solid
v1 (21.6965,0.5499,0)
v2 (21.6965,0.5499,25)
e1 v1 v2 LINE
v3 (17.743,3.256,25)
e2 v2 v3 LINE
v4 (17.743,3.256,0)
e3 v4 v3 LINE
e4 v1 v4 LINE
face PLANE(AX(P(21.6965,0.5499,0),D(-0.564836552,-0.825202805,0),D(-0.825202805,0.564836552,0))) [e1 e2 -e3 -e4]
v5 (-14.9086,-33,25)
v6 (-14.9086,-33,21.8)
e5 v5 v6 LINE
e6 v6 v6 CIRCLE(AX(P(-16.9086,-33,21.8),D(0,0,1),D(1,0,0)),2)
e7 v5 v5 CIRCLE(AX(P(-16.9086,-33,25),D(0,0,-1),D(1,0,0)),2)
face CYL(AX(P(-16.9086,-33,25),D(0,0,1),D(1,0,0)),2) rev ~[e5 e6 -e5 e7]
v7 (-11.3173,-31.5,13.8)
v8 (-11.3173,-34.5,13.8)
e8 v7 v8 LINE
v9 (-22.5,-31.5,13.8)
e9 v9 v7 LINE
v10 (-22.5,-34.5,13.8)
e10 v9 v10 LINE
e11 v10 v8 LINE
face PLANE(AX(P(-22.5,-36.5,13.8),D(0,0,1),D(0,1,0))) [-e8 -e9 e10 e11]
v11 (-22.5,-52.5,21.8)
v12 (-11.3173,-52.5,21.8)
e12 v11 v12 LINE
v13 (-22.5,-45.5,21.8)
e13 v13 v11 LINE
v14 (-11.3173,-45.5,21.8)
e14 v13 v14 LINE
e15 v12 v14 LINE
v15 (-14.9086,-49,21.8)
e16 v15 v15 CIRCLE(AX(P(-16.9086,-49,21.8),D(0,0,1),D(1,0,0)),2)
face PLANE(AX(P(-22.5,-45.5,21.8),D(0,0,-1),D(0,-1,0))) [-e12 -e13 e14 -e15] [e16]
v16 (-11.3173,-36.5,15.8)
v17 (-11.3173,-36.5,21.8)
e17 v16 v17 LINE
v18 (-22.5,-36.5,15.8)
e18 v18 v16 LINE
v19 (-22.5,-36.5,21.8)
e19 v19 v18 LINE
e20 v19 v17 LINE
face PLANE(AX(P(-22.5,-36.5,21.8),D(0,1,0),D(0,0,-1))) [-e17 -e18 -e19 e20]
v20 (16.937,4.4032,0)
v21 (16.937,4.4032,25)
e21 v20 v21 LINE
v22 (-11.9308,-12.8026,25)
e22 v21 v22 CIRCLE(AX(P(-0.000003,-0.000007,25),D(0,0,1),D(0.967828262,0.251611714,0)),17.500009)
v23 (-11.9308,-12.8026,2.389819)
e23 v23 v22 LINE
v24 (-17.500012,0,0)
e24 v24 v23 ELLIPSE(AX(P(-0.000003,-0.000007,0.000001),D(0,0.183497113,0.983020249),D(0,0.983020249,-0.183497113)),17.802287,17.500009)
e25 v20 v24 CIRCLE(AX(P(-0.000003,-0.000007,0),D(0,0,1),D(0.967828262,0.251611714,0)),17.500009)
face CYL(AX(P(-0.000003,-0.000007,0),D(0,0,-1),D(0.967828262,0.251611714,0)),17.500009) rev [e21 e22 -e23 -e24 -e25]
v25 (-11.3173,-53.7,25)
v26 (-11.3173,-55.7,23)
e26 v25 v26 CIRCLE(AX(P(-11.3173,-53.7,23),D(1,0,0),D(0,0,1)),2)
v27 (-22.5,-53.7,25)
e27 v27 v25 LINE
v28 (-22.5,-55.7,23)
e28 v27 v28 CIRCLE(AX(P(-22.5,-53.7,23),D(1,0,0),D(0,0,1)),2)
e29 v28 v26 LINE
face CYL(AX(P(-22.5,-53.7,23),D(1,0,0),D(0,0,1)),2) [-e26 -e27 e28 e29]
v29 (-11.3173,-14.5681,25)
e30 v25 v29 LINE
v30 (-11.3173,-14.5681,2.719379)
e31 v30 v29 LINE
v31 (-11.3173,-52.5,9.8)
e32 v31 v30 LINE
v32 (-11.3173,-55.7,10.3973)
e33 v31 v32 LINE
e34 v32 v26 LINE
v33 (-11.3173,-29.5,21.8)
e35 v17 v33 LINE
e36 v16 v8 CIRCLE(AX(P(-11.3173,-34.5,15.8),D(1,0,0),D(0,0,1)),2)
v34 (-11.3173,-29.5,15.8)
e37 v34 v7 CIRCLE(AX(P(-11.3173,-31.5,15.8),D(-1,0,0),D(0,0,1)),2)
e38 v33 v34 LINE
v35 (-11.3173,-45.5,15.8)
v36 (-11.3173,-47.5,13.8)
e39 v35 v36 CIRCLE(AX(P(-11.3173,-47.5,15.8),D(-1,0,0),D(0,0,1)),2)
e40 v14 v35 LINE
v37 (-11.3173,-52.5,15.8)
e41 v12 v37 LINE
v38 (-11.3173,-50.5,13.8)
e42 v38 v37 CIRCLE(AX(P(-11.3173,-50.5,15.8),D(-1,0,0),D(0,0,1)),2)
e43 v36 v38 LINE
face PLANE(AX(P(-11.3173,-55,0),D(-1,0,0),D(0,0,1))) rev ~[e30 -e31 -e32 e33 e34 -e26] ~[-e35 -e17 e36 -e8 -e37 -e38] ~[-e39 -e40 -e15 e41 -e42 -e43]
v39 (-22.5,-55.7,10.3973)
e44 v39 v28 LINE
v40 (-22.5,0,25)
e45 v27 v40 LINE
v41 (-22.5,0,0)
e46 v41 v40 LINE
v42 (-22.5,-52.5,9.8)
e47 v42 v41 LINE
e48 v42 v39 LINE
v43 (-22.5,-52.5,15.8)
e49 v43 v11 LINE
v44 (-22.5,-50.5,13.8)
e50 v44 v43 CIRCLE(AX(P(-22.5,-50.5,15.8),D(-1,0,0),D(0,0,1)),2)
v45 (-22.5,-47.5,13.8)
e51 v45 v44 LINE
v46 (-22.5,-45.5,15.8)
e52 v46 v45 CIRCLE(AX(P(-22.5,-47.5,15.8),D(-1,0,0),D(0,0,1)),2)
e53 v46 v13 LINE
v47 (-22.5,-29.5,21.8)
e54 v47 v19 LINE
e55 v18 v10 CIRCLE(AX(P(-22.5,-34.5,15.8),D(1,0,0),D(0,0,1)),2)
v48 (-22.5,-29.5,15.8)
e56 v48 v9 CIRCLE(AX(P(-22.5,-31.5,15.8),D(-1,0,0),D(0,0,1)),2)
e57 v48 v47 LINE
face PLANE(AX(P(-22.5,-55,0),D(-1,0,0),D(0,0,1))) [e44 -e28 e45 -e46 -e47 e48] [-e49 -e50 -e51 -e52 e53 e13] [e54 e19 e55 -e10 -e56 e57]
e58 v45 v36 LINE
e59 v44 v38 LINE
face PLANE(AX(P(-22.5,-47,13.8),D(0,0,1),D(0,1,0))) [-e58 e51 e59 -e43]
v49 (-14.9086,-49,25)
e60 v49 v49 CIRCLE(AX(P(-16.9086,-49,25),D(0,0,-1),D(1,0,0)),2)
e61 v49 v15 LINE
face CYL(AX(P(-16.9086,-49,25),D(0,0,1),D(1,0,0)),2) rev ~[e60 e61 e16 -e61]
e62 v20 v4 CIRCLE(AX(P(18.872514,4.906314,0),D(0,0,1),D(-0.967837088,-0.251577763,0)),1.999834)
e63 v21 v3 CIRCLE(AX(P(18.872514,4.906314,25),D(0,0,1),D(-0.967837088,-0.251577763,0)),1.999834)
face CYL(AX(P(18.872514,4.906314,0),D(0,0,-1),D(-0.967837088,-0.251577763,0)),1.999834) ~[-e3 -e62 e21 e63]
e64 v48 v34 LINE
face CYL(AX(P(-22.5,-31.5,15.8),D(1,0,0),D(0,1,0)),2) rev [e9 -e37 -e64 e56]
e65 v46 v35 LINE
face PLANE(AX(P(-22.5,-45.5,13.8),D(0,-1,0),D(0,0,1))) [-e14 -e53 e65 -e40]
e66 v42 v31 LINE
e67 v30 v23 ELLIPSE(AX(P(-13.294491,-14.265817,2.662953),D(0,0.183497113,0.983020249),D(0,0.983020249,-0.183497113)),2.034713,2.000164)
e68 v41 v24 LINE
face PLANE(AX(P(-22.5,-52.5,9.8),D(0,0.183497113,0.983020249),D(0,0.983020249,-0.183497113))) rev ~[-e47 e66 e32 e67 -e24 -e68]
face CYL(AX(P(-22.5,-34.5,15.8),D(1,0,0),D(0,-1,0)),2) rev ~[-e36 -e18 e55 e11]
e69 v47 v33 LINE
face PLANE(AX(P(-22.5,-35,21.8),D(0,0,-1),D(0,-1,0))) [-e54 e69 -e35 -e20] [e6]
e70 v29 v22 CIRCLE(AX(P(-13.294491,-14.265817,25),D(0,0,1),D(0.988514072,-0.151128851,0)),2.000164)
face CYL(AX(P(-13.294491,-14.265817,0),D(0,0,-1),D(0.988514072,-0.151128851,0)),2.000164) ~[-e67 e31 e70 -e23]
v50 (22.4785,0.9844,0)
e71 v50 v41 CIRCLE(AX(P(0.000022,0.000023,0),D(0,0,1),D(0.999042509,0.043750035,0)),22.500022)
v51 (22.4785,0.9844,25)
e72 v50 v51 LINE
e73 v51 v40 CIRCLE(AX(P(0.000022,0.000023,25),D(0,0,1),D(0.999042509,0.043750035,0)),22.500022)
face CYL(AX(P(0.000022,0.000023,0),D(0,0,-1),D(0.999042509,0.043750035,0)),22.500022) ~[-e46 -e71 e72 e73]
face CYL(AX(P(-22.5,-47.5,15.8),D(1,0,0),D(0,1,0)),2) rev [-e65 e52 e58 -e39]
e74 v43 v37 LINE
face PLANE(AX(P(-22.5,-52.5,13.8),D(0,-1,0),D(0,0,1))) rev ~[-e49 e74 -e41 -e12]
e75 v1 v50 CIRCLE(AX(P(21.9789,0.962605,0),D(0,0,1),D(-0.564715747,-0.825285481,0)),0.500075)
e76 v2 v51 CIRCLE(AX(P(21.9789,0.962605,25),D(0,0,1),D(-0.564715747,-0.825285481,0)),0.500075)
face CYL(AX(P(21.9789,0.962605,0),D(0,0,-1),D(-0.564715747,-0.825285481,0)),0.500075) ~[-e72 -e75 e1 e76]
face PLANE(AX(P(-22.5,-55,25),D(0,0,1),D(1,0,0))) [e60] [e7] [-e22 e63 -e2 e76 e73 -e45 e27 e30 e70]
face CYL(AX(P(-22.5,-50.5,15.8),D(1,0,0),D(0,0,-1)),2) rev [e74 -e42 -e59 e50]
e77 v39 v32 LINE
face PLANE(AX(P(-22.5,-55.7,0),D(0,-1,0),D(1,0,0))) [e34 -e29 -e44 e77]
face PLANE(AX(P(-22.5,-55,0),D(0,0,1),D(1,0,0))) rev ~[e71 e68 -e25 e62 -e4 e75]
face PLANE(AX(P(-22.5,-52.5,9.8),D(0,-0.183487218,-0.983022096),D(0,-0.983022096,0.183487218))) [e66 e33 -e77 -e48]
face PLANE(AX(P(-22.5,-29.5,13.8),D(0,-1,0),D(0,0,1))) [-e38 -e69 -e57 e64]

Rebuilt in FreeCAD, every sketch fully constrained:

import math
import FreeCAD as App
import Part
import Sketcher

V = App.Vector
Q = App.Units.Quantity


def edges_at(feature, points):
    """Names of the edges that pass closest to the given points."""
    edges = feature.Shape.Edges
    near = lambda p: min(range(len(edges)), key=lambda i: edges[i].distToShape(Part.Vertex(*p))[0])
    return sorted({f"Edge{near(p) + 1}" for p in points})

doc = App.newDocument("Part")
body = doc.addObject("PartDesign::Body", "Body")

sketch1 = body.newObject("Sketcher::SketchObject", "Sketch")
sketch1.AttachmentSupport = (doc.getObject("XY_Plane"), [""])
sketch1.MapMode = "FlatFace"
sketch1.addGeometry(Part.ArcOfCircle(Part.Circle(V(0, 0, 0), V(0, 0, 1), 17.5), math.radians(15), math.radians(227)), False)
sketch1.addGeometry(Part.ArcOfCircle(Part.Circle(V(18.9, 4.9, 0), V(0, 0, 1), 2), math.radians(-165), math.radians(-124)), False)
sketch1.addGeometry(Part.LineSegment(V(17.7, 3.3, 0), V(21.7, 0.5, 0)), False)
sketch1.addGeometry(Part.ArcOfCircle(Part.Circle(V(22, 1, 0), V(0, 0, 1), 0.5), math.radians(-124), math.radians(2)), False)
sketch1.addGeometry(Part.ArcOfCircle(Part.Circle(V(0, 0, 0), V(0, 0, 1), 22.5), math.radians(3), math.radians(180)), False)
sketch1.addGeometry(Part.LineSegment(V(-22.5, 0, 0), V(-22.5, -55, 0)), False)
sketch1.addGeometry(Part.LineSegment(V(-22.5, -55, 0), V(-11.3, -55, 0)), False)
sketch1.addGeometry(Part.LineSegment(V(-11.3, -55, 0), V(-11.3, -14.6, 0)), False)
sketch1.addGeometry(Part.ArcOfCircle(Part.Circle(V(-13.3, -14.3, 0), V(0, 0, 1), 2), math.radians(-9), math.radians(47)), False)
sketch1.addConstraint(Sketcher.Constraint("Tangent", 0, 1, 1, 1))
sketch1.addConstraint(Sketcher.Constraint("Tangent", 1, 2, 2, 1))
sketch1.addConstraint(Sketcher.Constraint("Tangent", 2, 2, 3, 1))
sketch1.addConstraint(Sketcher.Constraint("Tangent", 3, 2, 4, 1))
sketch1.addConstraint(Sketcher.Constraint("Tangent", 4, 2, 5, 1))
sketch1.addConstraint(Sketcher.Constraint("Coincident", 5, 2, 6, 1))
sketch1.addConstraint(Sketcher.Constraint("Coincident", 6, 2, 7, 1))
sketch1.addConstraint(Sketcher.Constraint("Coincident", 7, 2, 8, 1))
sketch1.addConstraint(Sketcher.Constraint("Tangent", 8, 2, 0, 2))
sketch1.addConstraint(Sketcher.Constraint("Vertical", 5))
sketch1.addConstraint(Sketcher.Constraint("Horizontal", 6))
sketch1.addConstraint(Sketcher.Constraint("Vertical", 7))
sketch1.addConstraint(Sketcher.Constraint("Coincident", 0, 3, -1, 1))
sketch1.addConstraint(Sketcher.Constraint("Coincident", 4, 3, -1, 1))
sketch1.addConstraint(Sketcher.Constraint("Equal", 1, 8))
sketch1.addConstraint(Sketcher.Constraint("Radius", 1, Q("2 mm")))
sketch1.addConstraint(Sketcher.Constraint("Radius", 0, Q("17.5 mm")))
sketch1.addConstraint(Sketcher.Constraint("Radius", 3, Q("0.5 mm")))
sketch1.addConstraint(Sketcher.Constraint("Radius", 4, Q("22.5 mm")))
sketch1.addConstraint(Sketcher.Constraint("DistanceY", 5, 2, 5, 1, Q("55 mm")))
sketch1.addConstraint(Sketcher.Constraint("Angle", 2, Q("-34.391 deg")))
sketch1.addConstraint(Sketcher.Constraint("DistanceY", 7, 1, 7, 2, Q("40.432 mm")))
sketch1.addConstraint(Sketcher.Constraint("DistanceY", -1, 1, 2, 2, Q("0.55 mm")))
sketch1.addConstraint(Sketcher.Constraint("DistanceX", 6, 1, 6, 2, Q("11.1827 mm")))
pad1 = body.newObject("PartDesign::Pad", "Pad")
pad1.Profile = sketch1
pad1.Length = 25

sketch2 = body.newObject("Sketcher::SketchObject", "Sketch001")
sketch2.AttachmentSupport = (doc.getObject("XY_Plane"), [""])
sketch2.MapMode = "FlatFace"
sketch2.AttachmentOffset = App.Placement(V(0, 0, 25), App.Rotation())
sketch2.addGeometry(Part.Circle(V(-16.9, -49, 0), V(0, 0, 1), 2), False)
sketch2.addGeometry(Part.Circle(V(-16.9, -33, 0), V(0, 0, 1), 2), False)
sketch2.addConstraint(Sketcher.Constraint("Equal", 0, 1))
sketch2.addConstraint(Sketcher.Constraint("Vertical", 0, 3, 1, 3))
sketch2.addConstraint(Sketcher.Constraint("Diameter", 0, Q("4 mm")))
sketch2.addConstraint(Sketcher.Constraint("DistanceY", 0, 3, 1, 3, Q("16 mm")))
sketch2.addConstraint(Sketcher.Constraint("DistanceY", 0, 3, -1, 1, Q("49 mm")))
sketch2.addConstraint(Sketcher.Constraint("DistanceX", 0, 3, -1, 1, Q("16.9086 mm")))
pocket1 = body.newObject("PartDesign::Pocket", "Pocket")
pocket1.Profile = sketch2
pocket1.Length = 10

sketch3 = body.newObject("Sketcher::SketchObject", "Sketch002")
sketch3.AttachmentSupport = (doc.getObject("YZ_Plane"), [""])
sketch3.MapMode = "FlatFace"
sketch3.AttachmentOffset = App.Placement(V(0, 0, -22.5), App.Rotation())
sketch3.addGeometry(Part.LineSegment(V(-36, 22, 0), V(-30, 22, 0)), False)
sketch3.addGeometry(Part.LineSegment(V(-30, 22, 0), V(-30, 14, 0)), False)
sketch3.addGeometry(Part.LineSegment(V(-30, 14, 0), V(-36, 14, 0)), False)
sketch3.addGeometry(Part.LineSegment(V(-36, 14, 0), V(-36, 22, 0)), False)
sketch3.addGeometry(Part.LineSegment(V(-46, 22, 0), V(-46, 14, 0)), False)
sketch3.addGeometry(Part.LineSegment(V(-46, 14, 0), V(-52, 14, 0)), False)
sketch3.addGeometry(Part.LineSegment(V(-52, 14, 0), V(-52, 22, 0)), False)
sketch3.addGeometry(Part.LineSegment(V(-52, 22, 0), V(-46, 22, 0)), False)
sketch3.addConstraint(Sketcher.Constraint("Coincident", 0, 2, 1, 1))
sketch3.addConstraint(Sketcher.Constraint("Coincident", 1, 2, 2, 1))
sketch3.addConstraint(Sketcher.Constraint("Coincident", 2, 2, 3, 1))
sketch3.addConstraint(Sketcher.Constraint("Coincident", 3, 2, 0, 1))
sketch3.addConstraint(Sketcher.Constraint("Coincident", 4, 2, 5, 1))
sketch3.addConstraint(Sketcher.Constraint("Coincident", 5, 2, 6, 1))
sketch3.addConstraint(Sketcher.Constraint("Coincident", 6, 2, 7, 1))
sketch3.addConstraint(Sketcher.Constraint("Coincident", 7, 2, 4, 1))
sketch3.addConstraint(Sketcher.Constraint("Horizontal", 0))
sketch3.addConstraint(Sketcher.Constraint("Vertical", 1))
sketch3.addConstraint(Sketcher.Constraint("Horizontal", 2))
sketch3.addConstraint(Sketcher.Constraint("Vertical", 3))
sketch3.addConstraint(Sketcher.Constraint("Vertical", 4))
sketch3.addConstraint(Sketcher.Constraint("Horizontal", 5))
sketch3.addConstraint(Sketcher.Constraint("Vertical", 6))
sketch3.addConstraint(Sketcher.Constraint("Horizontal", 7))
sketch3.addConstraint(Sketcher.Constraint("Horizontal", 2, 2, 4, 2))
sketch3.addConstraint(Sketcher.Constraint("Horizontal", 3, 2, 6, 2))
sketch3.addConstraint(Sketcher.Constraint("Equal", 2, 5))
sketch3.addConstraint(Sketcher.Constraint("DistanceY", 1, 2, 1, 1, Q("8 mm")))
sketch3.addConstraint(Sketcher.Constraint("DistanceX", 0, 1, 0, 2, Q("7 mm")))
sketch3.addConstraint(Sketcher.Constraint("DistanceX", 4, 2, 2, 2, Q("9 mm")))
sketch3.addConstraint(Sketcher.Constraint("DistanceX", 0, 2, -1, 1, Q("29.5 mm")))
sketch3.addConstraint(Sketcher.Constraint("DistanceY", -1, 1, 0, 2, Q("21.8 mm")))
pocket2 = body.newObject("PartDesign::Pocket", "Pocket001")
pocket2.Profile = sketch3
pocket2.Type = "ThroughAll"
pocket2.Reversed = True

sketch4 = body.newObject("Sketcher::SketchObject", "Sketch003")
sketch4.AttachmentSupport = (doc.getObject("XZ_Plane"), [""])
sketch4.MapMode = "FlatFace"
sketch4.AttachmentOffset = App.Placement(V(0, 0, 55), App.Rotation())
sketch4.addGeometry(Part.LineSegment(V(-22, 25, 0), V(-22, 0, 0)), False)
sketch4.addGeometry(Part.LineSegment(V(-22, 0, 0), V(-11, 0, 0)), False)
sketch4.addGeometry(Part.LineSegment(V(-11, 0, 0), V(-11, 25, 0)), False)
sketch4.addGeometry(Part.LineSegment(V(-11, 25, 0), V(-22, 25, 0)), False)
sketch4.addConstraint(Sketcher.Constraint("Coincident", 0, 2, 1, 1))
sketch4.addConstraint(Sketcher.Constraint("Coincident", 1, 2, 2, 1))
sketch4.addConstraint(Sketcher.Constraint("Coincident", 2, 2, 3, 1))
sketch4.addConstraint(Sketcher.Constraint("Coincident", 3, 2, 0, 1))
sketch4.addConstraint(Sketcher.Constraint("Vertical", 0))
sketch4.addConstraint(Sketcher.Constraint("Horizontal", 1))
sketch4.addConstraint(Sketcher.Constraint("Vertical", 2))
sketch4.addConstraint(Sketcher.Constraint("Horizontal", 3))
sketch4.addConstraint(Sketcher.Constraint("PointOnObject", 0, 2, -1))
sketch4.addConstraint(Sketcher.Constraint("DistanceY", 0, 2, 0, 1, Q("25 mm")))
sketch4.addConstraint(Sketcher.Constraint("DistanceX", 0, 2, -1, 1, Q("22.5 mm")))
sketch4.addConstraint(Sketcher.Constraint("DistanceX", 1, 1, 1, 2, Q("11.1827 mm")))
pad2 = body.newObject("PartDesign::Pad", "Pad001")
pad2.Profile = sketch4
pad2.Length = 0.7

sketch5 = body.newObject("Sketcher::SketchObject", "Sketch004")
sketch5.AttachmentSupport = (doc.getObject("YZ_Plane"), [""])
sketch5.MapMode = "FlatFace"
sketch5.AttachmentOffset = App.Placement(V(0, 0, -22.5), App.Rotation())
sketch5.addGeometry(Part.LineSegment(V(-52.5, 9.8, 0), V(0, 0, 0)), False)
sketch5.addGeometry(Part.LineSegment(V(0, 0, 0), V(-55.7, 0, 0)), False)
sketch5.addGeometry(Part.LineSegment(V(-55.7, 0, 0), V(-55.7, 10.4, 0)), False)
sketch5.addGeometry(Part.LineSegment(V(-55.7, 10.4, 0), V(-52.5, 9.8, 0)), False)
sketch5.addConstraint(Sketcher.Constraint("Coincident", 0, 2, 1, 1))
sketch5.addConstraint(Sketcher.Constraint("Coincident", 1, 2, 2, 1))
sketch5.addConstraint(Sketcher.Constraint("Coincident", 2, 2, 3, 1))
sketch5.addConstraint(Sketcher.Constraint("Coincident", 3, 2, 0, 1))
sketch5.addConstraint(Sketcher.Constraint("Horizontal", 1))
sketch5.addConstraint(Sketcher.Constraint("Vertical", 2))
sketch5.addConstraint(Sketcher.Constraint("Coincident", 0, 2, -1, 1))
sketch5.addConstraint(Sketcher.Constraint("Parallel", 0, 3))
sketch5.addConstraint(Sketcher.Constraint("DistanceX", 1, 2, 1, 1, Q("55.7 mm")))
sketch5.addConstraint(Sketcher.Constraint("DistanceX", 3, 2, -1, 1, Q("52.5 mm")))
sketch5.addConstraint(Sketcher.Constraint("DistanceY", -1, 1, 3, 2, Q("9.8 mm")))
pocket3 = body.newObject("PartDesign::Pocket", "Pocket002")
pocket3.Profile = sketch5
pocket3.Type = "ThroughAll"
pocket3.Reversed = True
doc.recompute()

fillet = body.newObject("PartDesign::Fillet", "Fillet")
fillet.Base = (pocket3, edges_at(pocket3, [
    (-16.909, -36.5, 13.8),
    (-16.909, -29.5, 13.8),
    (-16.909, -52.5, 13.8),
    (-16.909, -45.5, 13.8),
]))
fillet.Radius = 2
doc.recompute()

fillet2 = body.newObject("PartDesign::Fillet", "Fillet001")
fillet2.Base = (fillet, edges_at(fillet, [(-16.909, -55.7, 25)]))
fillet2.Radius = 2

doc.recompute()
